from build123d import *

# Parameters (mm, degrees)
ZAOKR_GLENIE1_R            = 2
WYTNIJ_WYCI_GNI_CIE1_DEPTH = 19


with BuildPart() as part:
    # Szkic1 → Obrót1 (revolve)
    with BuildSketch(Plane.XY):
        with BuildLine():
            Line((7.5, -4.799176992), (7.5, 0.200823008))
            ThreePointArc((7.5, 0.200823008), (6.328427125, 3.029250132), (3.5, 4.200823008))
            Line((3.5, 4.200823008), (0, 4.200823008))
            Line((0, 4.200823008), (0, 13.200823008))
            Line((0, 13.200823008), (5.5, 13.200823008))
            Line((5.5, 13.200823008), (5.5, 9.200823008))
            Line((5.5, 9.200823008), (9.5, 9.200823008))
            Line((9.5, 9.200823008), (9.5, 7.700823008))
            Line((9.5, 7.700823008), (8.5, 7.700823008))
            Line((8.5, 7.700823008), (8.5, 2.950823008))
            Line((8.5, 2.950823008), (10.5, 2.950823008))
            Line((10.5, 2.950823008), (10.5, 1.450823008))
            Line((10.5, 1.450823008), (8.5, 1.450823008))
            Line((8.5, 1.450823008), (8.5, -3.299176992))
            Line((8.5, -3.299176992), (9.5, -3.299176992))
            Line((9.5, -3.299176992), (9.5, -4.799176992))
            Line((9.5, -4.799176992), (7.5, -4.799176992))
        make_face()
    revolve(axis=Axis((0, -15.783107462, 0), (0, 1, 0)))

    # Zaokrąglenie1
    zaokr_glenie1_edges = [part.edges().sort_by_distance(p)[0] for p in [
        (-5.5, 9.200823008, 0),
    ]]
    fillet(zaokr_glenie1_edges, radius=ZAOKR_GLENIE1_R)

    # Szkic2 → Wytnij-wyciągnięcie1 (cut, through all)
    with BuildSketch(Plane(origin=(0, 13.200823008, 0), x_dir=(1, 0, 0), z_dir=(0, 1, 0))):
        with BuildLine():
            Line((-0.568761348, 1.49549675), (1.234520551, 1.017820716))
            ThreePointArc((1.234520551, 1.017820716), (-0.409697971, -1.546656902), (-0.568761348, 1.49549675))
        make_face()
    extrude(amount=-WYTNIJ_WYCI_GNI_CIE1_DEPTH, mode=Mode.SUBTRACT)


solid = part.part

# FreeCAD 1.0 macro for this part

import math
import FreeCAD as App
import Part
import Sketcher
Q = App.Units.Quantity


def edges_at(feature, points):
    """Names of the edges that pass closest to the given points."""
    edges = feature.Shape.Edges
    near = lambda p: min(range(len(edges)), key=lambda i: edges[i].distToShape(Part.Vertex(*p))[0])
    return sorted({f"Edge{near(p) + 1}" for p in points})

doc = App.newDocument("Part")
body = doc.addObject("PartDesign::Body", "Body")

sketch1 = body.newObject("Sketcher::SketchObject", "Sketch")
sketch1.AttachmentSupport = (doc.getObject("XY_Plane"), [""])
sketch1.MapMode = "FlatFace"
sketch1.addGeometry([
    Part.LineSegment(App.Vector(7.5, 0.2, 0), App.Vector(7.5, -4.8, 0)),
    Part.LineSegment(App.Vector(7.5, -4.8, 0), App.Vector(9.5, -4.8, 0)),
    Part.LineSegment(App.Vector(9.5, -4.8, 0), App.Vector(9.5, -3.3, 0)),
    Part.LineSegment(App.Vector(9.5, -3.3, 0), App.Vector(8.5, -3.3, 0)),
    Part.LineSegment(App.Vector(8.5, -3.3, 0), App.Vector(8.5, 1.5, 0)),
    Part.LineSegment(App.Vector(8.5, 1.5, 0), App.Vector(10.5, 1.5, 0)),
    Part.LineSegment(App.Vector(10.5, 1.5, 0), App.Vector(10.5, 3, 0)),
    Part.LineSegment(App.Vector(10.5, 3, 0), App.Vector(8.5, 3, 0)),
    Part.LineSegment(App.Vector(8.5, 3, 0), App.Vector(8.5, 7.7, 0)),
    Part.LineSegment(App.Vector(8.5, 7.7, 0), App.Vector(9.5, 7.7, 0)),
    Part.LineSegment(App.Vector(9.5, 7.7, 0), App.Vector(9.5, 9.2, 0)),
    Part.LineSegment(App.Vector(9.5, 9.2, 0), App.Vector(5.5, 9.2, 0)),
    Part.LineSegment(App.Vector(5.5, 9.2, 0), App.Vector(5.5, 13.2, 0)),
    Part.LineSegment(App.Vector(5.5, 13.2, 0), App.Vector(0, 13.2, 0)),
    Part.LineSegment(App.Vector(0, 13.2, 0), App.Vector(0, 4.2, 0)),
    Part.LineSegment(App.Vector(0, 4.2, 0), App.Vector(3.5, 4.2, 0)),
    Part.ArcOfCircle(Part.Circle(App.Vector(3.5, 0.2, 0), App.Vector(0, 0, 1), 4), math.radians(0), math.radians(90)),
], False)
sketch1.addConstraint([
    Sketcher.Constraint("Coincident", 0, 2, 1, 1),
    Sketcher.Constraint("Coincident", 1, 2, 2, 1),
    Sketcher.Constraint("Coincident", 2, 2, 3, 1),
    Sketcher.Constraint("Coincident", 3, 2, 4, 1),
    Sketcher.Constraint("Coincident", 4, 2, 5, 1),
    Sketcher.Constraint("Coincident", 5, 2, 6, 1),
    Sketcher.Constraint("Coincident", 6, 2, 7, 1),
    Sketcher.Constraint("Coincident", 7, 2, 8, 1),
    Sketcher.Constraint("Coincident", 8, 2, 9, 1),
    Sketcher.Constraint("Coincident", 9, 2, 10, 1),
    Sketcher.Constraint("Coincident", 10, 2, 11, 1),
    Sketcher.Constraint("Coincident", 11, 2, 12, 1),
    Sketcher.Constraint("Coincident", 12, 2, 13, 1),
    Sketcher.Constraint("Coincident", 13, 2, 14, 1),
    Sketcher.Constraint("Coincident", 14, 2, 15, 1),
    Sketcher.Constraint("Tangent", 15, 2, 16, 2),
    Sketcher.Constraint("Tangent", 16, 1, 0, 1),
    Sketcher.Constraint("Vertical", 0),
    Sketcher.Constraint("Horizontal", 1),
    Sketcher.Constraint("Vertical", 2),
    Sketcher.Constraint("Horizontal", 3),
    Sketcher.Constraint("Vertical", 4),
    Sketcher.Constraint("Horizontal", 5),
    Sketcher.Constraint("Vertical", 6),
    Sketcher.Constraint("Horizontal", 7),
    Sketcher.Constraint("Vertical", 8),
    Sketcher.Constraint("Horizontal", 9),
    Sketcher.Constraint("Vertical", 10),
    Sketcher.Constraint("Horizontal", 11),
    Sketcher.Constraint("Vertical", 12),
    Sketcher.Constraint("Horizontal", 13),
    Sketcher.Constraint("Vertical", 14),
    Sketcher.Constraint("Horizontal", 15),
    Sketcher.Constraint("PointOnObject", 13, 2, -2),
    Sketcher.Constraint("Vertical", 4, 2, 7, 2),
    Sketcher.Constraint("Vertical", 2, 2, 9, 2),
    Sketcher.Constraint("Equal", 1, 5),
    Sketcher.Constraint("Equal", 2, 6),
    Sketcher.Constraint("Equal", 4, 8),
    Sketcher.Constraint("Equal", 6, 10),
    Sketcher.Constraint("Equal", 11, 12),
    Sketcher.Constraint("Radius", 16, Q("4 mm")),
    Sketcher.Constraint("DistanceX", 1, 1, 1, 2, Q("2 mm")),
    Sketcher.Constraint("DistanceX", 3, 2, 3, 1, Q("1 mm")),
    Sketcher.Constraint("DistanceX", 11, 2, 11, 1, Q("4 mm")),
    Sketcher.Constraint("DistanceY", 0, 2, 0, 1, Q("5 mm")),
    Sketcher.Constraint("DistanceY", 14, 2, 14, 1, Q("9 mm")),
    Sketcher.Constraint("DistanceX", 13, 2, 13, 1, Q("5.5 mm")),
    Sketcher.Constraint("DistanceY", 2, 1, 2, 2, Q("1.5 mm")),
    Sketcher.Constraint("DistanceY", -1, 1, 16, 3, Q("0.200823 mm")),
])
revolution = body.newObject("PartDesign::Revolution", "Revolution")
revolution.Profile = sketch1
revolution.ReferenceAxis = (sketch1, ["V_Axis"])
revolution.Angle = 360
doc.recompute()

fillet = body.newObject("PartDesign::Fillet", "Fillet")
fillet.Base = (revolution, edges_at(revolution, [(-5.5, 9.201, 0)]))
fillet.Radius = 2

sketch2 = body.newObject("Sketcher::SketchObject", "Sketch001")
sketch2.AttachmentSupport = (doc.getObject("XZ_Plane"), [""])
sketch2.MapMode = "FlatFace"
sketch2.AttachmentOffset = App.Placement(App.Vector(0, 0, -13.200823), App.Rotation())
sketch2.addGeometry([
    Part.LineSegment(App.Vector(1.2, -1, 0), App.Vector(-0.6, -1.5, 0)),
    Part.ArcOfCircle(Part.Circle(App.Vector(0, 0, 0), App.Vector(0, 0, 1), 1.6), math.radians(-40), math.radians(249)),
], False)
sketch2.addConstraint([
    Sketcher.Constraint("Coincident", 0, 1, 1, 1),
    Sketcher.Constraint("Coincident", 1, 2, 0, 2),
    Sketcher.Constraint("Coincident", 1, 3, -1, 1),
    Sketcher.Constraint("Radius", 1, Q("1.6 mm")),
    Sketcher.Constraint("DistanceX", -1, 1, 0, 1, Q("1.234521 mm")),
    Sketcher.Constraint("DistanceX", 1, 2, -1, 1, Q("0.568761 mm")),
])
pocket1 = body.newObject("PartDesign::Pocket", "Pocket")
pocket1.Profile = sketch2
pocket1.Type = "ThroughAll"
pocket1.Reversed = True

doc.recompute()
